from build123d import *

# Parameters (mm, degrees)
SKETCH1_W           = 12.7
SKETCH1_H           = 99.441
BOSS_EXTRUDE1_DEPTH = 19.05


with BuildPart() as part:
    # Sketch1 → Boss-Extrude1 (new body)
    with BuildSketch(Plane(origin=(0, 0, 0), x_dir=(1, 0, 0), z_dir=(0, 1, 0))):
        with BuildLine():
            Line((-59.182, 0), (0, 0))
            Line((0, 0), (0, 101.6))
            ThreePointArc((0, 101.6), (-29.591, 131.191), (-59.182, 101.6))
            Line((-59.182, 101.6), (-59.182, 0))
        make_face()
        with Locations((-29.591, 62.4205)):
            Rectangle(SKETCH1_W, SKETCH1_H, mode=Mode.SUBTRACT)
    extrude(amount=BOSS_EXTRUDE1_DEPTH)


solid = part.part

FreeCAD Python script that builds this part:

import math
import FreeCAD as App
import Part
import Sketcher

V = App.Vector
Q = App.Units.Quantity

doc = App.newDocument("Part")
body = doc.addObject("PartDesign::Body", "Body")

sketch1 = body.newObject("Sketcher::SketchObject", "Sketch")
sketch1.AttachmentSupport = (doc.getObject("XZ_Plane"), [""])
sketch1.MapMode = "FlatFace"
sketch1.addGeometry([
    Part.LineSegment(V(-59, 0, 0), V(0, 0, 0)),
    Part.LineSegment(V(0, 0, 0), V(0, -102, 0)),
    Part.ArcOfCircle(Part.Circle(V(-30, -102, 0), V(0, 0, 1), 30), math.radians(180), math.radians(360)),
    Part.LineSegment(V(-59, -102, 0), V(-59, 0, 0)),
    Part.LineSegment(V(-23, -13, 0), V(-36, -13, 0)),
    Part.LineSegment(V(-36, -13, 0), V(-36, -112, 0)),
    Part.LineSegment(V(-36, -112, 0), V(-23, -112, 0)),
    Part.LineSegment(V(-23, -112, 0), V(-23, -13, 0)),
], False)
sketch1.addConstraint([
    Sketcher.Constraint("Coincident", 0, 2, 1, 1),
    Sketcher.Constraint("Tangent", 1, 2, 2, 2),
    Sketcher.Constraint("Tangent", 2, 1, 3, 1),
    Sketcher.Constraint("Coincident", 3, 2, 0, 1),
    Sketcher.Constraint("Coincident", 4, 2, 5, 1),
    Sketcher.Constraint("Coincident", 5, 2, 6, 1),
    Sketcher.Constraint("Coincident", 6, 2, 7, 1),
    Sketcher.Constraint("Coincident", 7, 2, 4, 1),
    Sketcher.Constraint("Horizontal", 0),
    Sketcher.Constraint("Vertical", 1),
    Sketcher.Constraint("Vertical", 3),
    Sketcher.Constraint("Horizontal", 4),
    Sketcher.Constraint("Vertical", 5),
    Sketcher.Constraint("Horizontal", 6),
    Sketcher.Constraint("Vertical", 7),
    Sketcher.Constraint("Coincident", 0, 2, -1, 1),
    Sketcher.Constraint("DistanceY", 1, 2, 1, 1, Q("4 in")),
    Sketcher.Constraint("DistanceX", 4, 2, 4, 1, Q("0.5 in")),
    Sketcher.Constraint("Radius", 2, Q("1.165 in")),
    Sketcher.Constraint("DistanceY", 4, 2, -1, 1, Q("0.5 in")),
    Sketcher.Constraint("DistanceY", 5, 2, 5, 1, Q("3.915 in")),
    Sketcher.Constraint("DistanceX", 4, 2, 2, 3, Q("0.25 in")),
])
pad1 = body.newObject("PartDesign::Pad", "Pad")
pad1.Profile = sketch1
pad1.Length = Q("0.75 in")
pad1.Reversed = True

doc.recompute()
